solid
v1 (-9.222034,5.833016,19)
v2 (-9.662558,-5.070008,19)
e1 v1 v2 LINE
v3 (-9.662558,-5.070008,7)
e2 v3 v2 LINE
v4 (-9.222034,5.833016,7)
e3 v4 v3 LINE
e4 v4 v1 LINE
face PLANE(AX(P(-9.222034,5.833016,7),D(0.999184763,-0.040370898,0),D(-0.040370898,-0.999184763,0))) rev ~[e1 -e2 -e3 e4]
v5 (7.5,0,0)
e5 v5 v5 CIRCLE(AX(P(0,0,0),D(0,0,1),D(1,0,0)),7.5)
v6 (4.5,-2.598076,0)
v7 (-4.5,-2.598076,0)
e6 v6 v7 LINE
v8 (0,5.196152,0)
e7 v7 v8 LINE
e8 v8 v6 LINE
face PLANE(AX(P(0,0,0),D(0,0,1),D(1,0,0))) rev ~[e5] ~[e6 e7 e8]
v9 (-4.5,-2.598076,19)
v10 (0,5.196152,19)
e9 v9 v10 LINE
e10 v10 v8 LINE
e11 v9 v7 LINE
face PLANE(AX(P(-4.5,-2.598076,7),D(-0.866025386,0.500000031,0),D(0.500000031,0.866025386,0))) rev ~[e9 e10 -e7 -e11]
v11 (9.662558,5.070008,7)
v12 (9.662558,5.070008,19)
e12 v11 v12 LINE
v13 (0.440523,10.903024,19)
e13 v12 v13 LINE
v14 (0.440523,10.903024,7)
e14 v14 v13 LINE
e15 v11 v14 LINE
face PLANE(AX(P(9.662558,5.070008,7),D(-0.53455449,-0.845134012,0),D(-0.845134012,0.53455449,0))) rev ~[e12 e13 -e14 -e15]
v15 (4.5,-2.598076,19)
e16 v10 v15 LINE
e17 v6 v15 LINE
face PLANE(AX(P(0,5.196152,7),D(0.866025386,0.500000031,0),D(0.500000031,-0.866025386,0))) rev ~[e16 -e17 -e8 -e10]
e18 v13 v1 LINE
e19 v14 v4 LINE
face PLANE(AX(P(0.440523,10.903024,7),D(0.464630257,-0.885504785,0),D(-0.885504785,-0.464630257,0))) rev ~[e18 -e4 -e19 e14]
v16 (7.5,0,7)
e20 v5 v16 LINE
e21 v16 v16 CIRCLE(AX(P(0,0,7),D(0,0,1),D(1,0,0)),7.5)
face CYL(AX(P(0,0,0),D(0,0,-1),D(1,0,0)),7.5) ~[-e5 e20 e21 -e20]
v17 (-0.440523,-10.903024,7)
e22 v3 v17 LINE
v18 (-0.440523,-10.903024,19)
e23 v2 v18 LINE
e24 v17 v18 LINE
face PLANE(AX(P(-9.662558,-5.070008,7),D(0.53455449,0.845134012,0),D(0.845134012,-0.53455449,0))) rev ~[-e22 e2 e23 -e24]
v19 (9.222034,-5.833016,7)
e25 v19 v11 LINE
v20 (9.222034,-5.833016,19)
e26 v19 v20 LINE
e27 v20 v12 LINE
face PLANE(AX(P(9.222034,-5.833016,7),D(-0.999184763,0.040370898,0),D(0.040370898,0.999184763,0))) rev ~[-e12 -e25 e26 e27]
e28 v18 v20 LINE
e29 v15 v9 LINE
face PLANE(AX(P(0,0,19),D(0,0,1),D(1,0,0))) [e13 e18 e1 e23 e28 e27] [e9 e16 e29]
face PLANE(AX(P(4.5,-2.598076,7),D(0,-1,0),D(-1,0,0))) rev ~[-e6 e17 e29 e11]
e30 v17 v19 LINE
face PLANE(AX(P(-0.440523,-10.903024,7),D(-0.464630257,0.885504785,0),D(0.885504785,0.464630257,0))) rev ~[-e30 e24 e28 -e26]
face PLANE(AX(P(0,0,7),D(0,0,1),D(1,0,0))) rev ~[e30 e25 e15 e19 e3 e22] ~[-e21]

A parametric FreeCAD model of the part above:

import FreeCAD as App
import Part
import Sketcher

V = App.Vector
Q = App.Units.Quantity


def add_polygon(sketch, points):
    """Adds a closed chain of lines whose ends are joined by coincident constraints."""
    first, n = sketch.GeometryCount, len(points)
    for a, b in zip(points, points[1:] + points[:1]):
        sketch.addGeometry(Part.LineSegment(App.Vector(*a, 0), App.Vector(*b, 0)), False)
    for i in range(n):
        sketch.addConstraint(Sketcher.Constraint("Coincident", first + i, 2, first + (i + 1) % n, 1))

doc = App.newDocument("Part")
body = doc.addObject("PartDesign::Body", "Body")

# Sketch on XY plane
sketch1 = body.newObject("Sketcher::SketchObject", "Sketch")
sketch1.AttachmentSupport = (doc.getObject("XY_Plane"), [""])
sketch1.MapMode = "FlatFace"
sketch1.addGeometry(Part.Circle(V(0, 0, 0), V(0, 0, 1), 8), False)  # 0
add_polygon(sketch1, [(4, -3), (-4, -3), (0, 5)])  # lines 1-3
sketch1.addConstraint([
    Sketcher.Constraint("Horizontal", 1),
    Sketcher.Constraint("Coincident", 0, 3, -1, 1),
    Sketcher.Constraint("PointOnObject", 2, 2, -2),
    Sketcher.Constraint("Equal", 2, 3),
    Sketcher.Constraint("Diameter", 0, 15.0),
    Sketcher.Constraint("DistanceX", 1, 2, 1, 1, 9.0),
    Sketcher.Constraint("Angle", 2, Q("59.999998 deg")),
    Sketcher.Constraint("DistanceY", -1, 1, 2, 2, 5.196152),
])
pad1 = body.newObject("PartDesign::Pad", "Pad")
pad1.Profile = sketch1
pad1.Length = 7

# Sketch on XY plane
sketch2 = body.newObject("Sketcher::SketchObject", "Sketch001")
sketch2.AttachmentSupport = (doc.getObject("XY_Plane"), [""])
sketch2.MapMode = "FlatFace"
sketch2.AttachmentOffset = App.Placement(V(0, 0, 7), App.Rotation())
add_polygon(sketch2, [(9, -6), (10, 5), (0, 11), (-9, 6), (-10, -5), (0, -11)])  # lines 0-5
add_polygon(sketch2, [(0, 5), (4, -3), (-4, -3)])  # lines 6-8
sketch2.addConstraint([
    Sketcher.Constraint("Horizontal", 7),
    Sketcher.Constraint("Symmetric", 0, 2, 3, 2, -1, 1),
    Sketcher.Constraint("Symmetric", 1, 2, 4, 2, -1, 1),
    Sketcher.Constraint("Symmetric", 2, 2, 5, 2, -1, 1),
    Sketcher.Constraint("PointOnObject", 8, 2, -2),
    Sketcher.Constraint("Equal", 0, 1),
    Sketcher.Constraint("Equal", 1, 2),
    Sketcher.Constraint("Equal", 6, 8),
    Sketcher.Constraint("DistanceX", 7, 2, 7, 1, 9.0),
    Sketcher.Constraint("Angle", 6, Q("-59.999998 deg")),
    Sketcher.Constraint("DistanceY", 6, 2, 1, 2, 13.5011),
    Sketcher.Constraint("Distance", 0, 10.91192),
    Sketcher.Constraint("DistanceX", -1, 1, 0, 2, 9.662558),
    Sketcher.Constraint("DistanceY", -1, 1, 8, 2, 5.196152),
    Sketcher.Constraint("DistanceY", 2, 2, 1, 2, 5.070008),
])
pad2 = body.newObject("PartDesign::Pad", "Pad001")
pad2.Profile = sketch2
pad2.Length = 12

doc.recompute()
